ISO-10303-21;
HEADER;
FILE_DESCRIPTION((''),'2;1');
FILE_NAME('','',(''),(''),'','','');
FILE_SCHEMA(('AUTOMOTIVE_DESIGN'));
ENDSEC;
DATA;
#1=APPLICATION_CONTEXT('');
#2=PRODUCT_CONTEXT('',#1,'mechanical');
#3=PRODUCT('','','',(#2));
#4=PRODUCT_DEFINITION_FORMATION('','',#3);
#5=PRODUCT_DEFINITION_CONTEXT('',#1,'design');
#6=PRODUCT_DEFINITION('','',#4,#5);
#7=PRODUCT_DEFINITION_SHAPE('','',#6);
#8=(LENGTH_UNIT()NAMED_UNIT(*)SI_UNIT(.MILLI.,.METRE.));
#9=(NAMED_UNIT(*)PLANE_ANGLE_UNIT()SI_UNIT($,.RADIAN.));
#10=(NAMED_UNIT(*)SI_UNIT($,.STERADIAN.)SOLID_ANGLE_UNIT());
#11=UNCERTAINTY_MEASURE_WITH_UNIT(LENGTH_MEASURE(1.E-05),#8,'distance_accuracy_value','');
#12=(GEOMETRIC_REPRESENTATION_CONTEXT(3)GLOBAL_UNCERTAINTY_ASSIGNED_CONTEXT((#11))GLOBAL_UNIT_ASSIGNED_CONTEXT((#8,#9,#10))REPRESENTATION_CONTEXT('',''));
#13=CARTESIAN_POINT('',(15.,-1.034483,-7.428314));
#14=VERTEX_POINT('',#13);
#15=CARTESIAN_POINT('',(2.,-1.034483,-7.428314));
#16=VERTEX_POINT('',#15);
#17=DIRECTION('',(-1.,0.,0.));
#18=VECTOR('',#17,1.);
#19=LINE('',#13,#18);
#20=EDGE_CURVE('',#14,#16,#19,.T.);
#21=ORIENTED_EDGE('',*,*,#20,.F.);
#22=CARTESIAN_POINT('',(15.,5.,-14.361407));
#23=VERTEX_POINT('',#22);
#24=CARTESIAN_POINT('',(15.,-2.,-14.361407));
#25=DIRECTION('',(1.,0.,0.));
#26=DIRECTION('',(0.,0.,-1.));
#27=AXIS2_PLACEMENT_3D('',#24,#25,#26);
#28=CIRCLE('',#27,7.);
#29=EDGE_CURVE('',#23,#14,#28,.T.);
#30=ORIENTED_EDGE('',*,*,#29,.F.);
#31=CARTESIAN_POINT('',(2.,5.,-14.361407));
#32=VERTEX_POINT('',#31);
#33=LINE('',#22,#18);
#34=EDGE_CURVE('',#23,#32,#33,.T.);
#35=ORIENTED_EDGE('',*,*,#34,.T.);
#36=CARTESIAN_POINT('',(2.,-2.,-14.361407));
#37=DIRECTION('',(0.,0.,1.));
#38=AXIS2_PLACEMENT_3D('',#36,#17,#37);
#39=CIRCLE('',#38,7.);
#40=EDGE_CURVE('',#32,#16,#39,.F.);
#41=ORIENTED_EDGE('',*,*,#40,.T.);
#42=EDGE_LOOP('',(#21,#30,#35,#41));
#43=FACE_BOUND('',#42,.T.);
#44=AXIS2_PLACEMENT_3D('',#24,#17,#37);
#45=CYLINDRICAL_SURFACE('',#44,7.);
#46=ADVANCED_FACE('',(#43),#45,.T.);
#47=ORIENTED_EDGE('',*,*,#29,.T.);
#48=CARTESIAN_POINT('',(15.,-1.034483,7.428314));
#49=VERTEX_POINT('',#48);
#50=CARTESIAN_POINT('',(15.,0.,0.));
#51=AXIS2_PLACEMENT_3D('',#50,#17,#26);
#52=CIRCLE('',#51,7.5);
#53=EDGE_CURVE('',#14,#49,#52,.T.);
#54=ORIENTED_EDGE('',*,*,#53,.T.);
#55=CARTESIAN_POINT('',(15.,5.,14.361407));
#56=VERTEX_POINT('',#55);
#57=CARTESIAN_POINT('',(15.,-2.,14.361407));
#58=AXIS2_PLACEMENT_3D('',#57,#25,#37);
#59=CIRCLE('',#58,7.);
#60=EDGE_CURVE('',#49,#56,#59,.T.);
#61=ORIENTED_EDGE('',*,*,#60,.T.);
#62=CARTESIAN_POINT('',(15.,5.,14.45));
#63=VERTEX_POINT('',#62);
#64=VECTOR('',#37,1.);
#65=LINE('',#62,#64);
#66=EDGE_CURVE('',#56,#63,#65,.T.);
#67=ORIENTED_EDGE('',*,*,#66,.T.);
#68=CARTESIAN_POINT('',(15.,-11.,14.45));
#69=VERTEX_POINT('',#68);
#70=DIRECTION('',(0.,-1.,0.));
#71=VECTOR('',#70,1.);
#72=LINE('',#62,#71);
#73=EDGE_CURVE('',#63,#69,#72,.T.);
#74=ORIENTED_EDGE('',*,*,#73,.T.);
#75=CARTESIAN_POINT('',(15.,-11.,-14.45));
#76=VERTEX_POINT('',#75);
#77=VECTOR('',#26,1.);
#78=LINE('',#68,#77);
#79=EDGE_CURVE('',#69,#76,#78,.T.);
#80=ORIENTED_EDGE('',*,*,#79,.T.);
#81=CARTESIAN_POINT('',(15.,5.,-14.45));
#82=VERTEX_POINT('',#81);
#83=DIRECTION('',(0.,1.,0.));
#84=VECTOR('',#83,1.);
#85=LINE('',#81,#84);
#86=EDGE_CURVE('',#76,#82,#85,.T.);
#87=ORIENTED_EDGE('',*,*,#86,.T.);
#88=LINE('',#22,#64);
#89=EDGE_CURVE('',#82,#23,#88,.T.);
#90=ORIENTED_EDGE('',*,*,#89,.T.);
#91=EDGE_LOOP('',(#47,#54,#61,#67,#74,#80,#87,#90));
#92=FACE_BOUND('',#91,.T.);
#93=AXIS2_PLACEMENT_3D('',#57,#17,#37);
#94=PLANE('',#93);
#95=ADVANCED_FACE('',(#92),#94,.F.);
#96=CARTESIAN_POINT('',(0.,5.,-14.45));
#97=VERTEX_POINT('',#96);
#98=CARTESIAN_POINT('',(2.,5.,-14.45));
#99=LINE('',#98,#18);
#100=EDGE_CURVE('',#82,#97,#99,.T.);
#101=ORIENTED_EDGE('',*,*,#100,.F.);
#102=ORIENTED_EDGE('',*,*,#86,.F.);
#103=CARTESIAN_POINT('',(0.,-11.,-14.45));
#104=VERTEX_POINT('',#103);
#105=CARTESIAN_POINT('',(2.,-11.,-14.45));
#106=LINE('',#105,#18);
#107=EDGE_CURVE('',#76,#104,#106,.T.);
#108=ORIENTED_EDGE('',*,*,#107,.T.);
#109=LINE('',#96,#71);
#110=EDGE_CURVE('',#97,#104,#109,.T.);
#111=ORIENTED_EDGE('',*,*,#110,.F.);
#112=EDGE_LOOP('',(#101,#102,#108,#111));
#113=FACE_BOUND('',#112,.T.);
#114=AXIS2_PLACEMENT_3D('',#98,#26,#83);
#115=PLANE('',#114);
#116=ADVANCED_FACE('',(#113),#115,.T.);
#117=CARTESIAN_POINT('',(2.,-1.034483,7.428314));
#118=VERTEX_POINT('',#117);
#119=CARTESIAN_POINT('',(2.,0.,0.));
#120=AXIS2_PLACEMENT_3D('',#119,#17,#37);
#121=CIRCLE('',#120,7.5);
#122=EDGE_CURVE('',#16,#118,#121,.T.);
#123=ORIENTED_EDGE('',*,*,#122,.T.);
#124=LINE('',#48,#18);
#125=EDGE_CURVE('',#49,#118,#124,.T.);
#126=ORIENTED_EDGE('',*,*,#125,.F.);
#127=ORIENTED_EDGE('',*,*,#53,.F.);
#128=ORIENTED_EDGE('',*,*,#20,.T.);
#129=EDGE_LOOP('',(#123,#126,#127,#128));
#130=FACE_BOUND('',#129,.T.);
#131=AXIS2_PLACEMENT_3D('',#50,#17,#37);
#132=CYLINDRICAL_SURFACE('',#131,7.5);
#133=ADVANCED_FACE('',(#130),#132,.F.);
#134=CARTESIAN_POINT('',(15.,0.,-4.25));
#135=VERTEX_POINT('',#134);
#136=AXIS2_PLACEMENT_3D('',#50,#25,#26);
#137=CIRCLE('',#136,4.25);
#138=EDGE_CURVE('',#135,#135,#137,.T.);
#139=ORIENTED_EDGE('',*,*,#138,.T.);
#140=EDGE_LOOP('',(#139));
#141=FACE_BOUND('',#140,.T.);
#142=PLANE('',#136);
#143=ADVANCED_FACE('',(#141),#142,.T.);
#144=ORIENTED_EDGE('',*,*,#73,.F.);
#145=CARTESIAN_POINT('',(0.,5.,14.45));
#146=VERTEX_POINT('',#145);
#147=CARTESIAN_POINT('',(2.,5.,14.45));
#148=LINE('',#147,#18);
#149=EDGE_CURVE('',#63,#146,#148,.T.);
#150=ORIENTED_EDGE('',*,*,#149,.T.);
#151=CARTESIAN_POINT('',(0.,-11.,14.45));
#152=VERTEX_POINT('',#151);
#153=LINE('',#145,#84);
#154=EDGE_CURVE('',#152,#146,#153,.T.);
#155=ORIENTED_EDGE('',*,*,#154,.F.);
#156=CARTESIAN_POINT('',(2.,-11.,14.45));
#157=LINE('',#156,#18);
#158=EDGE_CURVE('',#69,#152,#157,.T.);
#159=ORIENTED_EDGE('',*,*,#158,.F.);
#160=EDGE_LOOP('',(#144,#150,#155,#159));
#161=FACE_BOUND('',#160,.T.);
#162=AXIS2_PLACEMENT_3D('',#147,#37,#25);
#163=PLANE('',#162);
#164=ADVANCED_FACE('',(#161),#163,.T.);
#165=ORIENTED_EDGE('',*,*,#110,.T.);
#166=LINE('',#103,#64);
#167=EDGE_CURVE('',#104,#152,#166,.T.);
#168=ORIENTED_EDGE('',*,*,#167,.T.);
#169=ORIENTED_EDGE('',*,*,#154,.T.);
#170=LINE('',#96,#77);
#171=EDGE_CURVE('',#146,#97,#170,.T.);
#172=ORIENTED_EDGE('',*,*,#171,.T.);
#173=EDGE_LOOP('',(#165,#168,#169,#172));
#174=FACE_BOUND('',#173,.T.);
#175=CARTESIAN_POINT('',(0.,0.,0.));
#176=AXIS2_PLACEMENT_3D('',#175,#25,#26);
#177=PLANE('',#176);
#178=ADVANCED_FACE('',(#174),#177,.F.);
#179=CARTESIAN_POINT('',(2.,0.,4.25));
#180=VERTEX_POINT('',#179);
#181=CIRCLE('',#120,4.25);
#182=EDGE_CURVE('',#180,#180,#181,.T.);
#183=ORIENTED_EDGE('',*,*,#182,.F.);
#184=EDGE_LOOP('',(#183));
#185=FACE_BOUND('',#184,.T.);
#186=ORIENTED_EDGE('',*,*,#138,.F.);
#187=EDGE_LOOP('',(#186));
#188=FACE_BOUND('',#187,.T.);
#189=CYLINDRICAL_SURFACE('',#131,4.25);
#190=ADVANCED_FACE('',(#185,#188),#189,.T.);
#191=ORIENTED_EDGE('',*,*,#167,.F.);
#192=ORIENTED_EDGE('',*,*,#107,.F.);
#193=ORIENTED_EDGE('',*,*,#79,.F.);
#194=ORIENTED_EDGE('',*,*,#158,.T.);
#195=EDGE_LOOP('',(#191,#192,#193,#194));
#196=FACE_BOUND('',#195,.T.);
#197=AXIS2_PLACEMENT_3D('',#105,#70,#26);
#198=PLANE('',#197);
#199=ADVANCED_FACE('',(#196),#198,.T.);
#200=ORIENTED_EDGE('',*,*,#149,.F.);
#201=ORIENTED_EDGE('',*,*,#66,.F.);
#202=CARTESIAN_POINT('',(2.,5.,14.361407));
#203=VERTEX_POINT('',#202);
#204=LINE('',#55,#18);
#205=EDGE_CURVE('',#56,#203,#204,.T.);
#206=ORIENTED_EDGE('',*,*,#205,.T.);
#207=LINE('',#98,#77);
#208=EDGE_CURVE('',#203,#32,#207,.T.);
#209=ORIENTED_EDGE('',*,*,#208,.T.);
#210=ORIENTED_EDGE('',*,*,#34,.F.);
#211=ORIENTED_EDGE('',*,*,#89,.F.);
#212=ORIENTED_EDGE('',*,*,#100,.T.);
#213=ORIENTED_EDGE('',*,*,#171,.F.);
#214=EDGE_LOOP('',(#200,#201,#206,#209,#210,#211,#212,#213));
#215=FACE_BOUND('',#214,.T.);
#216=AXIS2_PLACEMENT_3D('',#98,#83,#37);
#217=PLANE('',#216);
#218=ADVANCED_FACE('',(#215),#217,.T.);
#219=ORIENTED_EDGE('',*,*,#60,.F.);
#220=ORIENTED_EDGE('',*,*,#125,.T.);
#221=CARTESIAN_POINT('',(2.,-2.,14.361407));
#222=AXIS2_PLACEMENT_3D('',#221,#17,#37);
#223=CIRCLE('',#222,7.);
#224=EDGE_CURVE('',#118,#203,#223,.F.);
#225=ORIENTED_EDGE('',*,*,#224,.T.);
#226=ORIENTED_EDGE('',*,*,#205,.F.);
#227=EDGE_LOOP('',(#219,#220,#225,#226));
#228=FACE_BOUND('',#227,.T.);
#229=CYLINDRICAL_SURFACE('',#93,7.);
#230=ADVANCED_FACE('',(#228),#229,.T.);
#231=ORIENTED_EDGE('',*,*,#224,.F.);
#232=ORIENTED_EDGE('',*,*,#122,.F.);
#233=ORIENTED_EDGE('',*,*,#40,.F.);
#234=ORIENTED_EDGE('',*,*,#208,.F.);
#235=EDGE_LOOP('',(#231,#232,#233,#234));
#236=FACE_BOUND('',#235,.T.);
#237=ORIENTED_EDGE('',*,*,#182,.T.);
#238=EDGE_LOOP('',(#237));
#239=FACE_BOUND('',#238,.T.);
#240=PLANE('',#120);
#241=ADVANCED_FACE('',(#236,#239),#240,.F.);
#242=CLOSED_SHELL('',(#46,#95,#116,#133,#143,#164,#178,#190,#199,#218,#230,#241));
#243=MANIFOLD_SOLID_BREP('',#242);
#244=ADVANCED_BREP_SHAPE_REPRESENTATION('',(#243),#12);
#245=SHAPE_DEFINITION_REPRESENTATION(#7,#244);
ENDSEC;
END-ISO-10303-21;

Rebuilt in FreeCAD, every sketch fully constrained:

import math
import FreeCAD as App
import Part
import Sketcher

doc = App.newDocument("Part")
body = doc.addObject("PartDesign::Body", "Body")

sketch1 = body.newObject("Sketcher::SketchObject", "Sketch")
sketch1.AttachmentSupport = (doc.getObject("YZ_Plane"), [""])
sketch1.MapMode = "FlatFace"
sketch1.addGeometry(Part.Circle(App.Vector(0, 0, 0), App.Vector(0, 0, 1), 4.25), False)
sketch1.addConstraint([
    Sketcher.Constraint("Coincident", 0, 3, -1, 1),
    Sketcher.Constraint("Diameter", 0, 8.5),
])
pad1 = body.newObject("PartDesign::Pad", "Pad")
pad1.Profile = sketch1
pad1.Length = 15
body2 = doc.addObject("PartDesign::Body", "Body001")

sketch2 = body2.newObject("Sketcher::SketchObject", "Sketch001")
sketch2.AttachmentSupport = (doc.getObject("YZ_Plane001"), [""])
sketch2.MapMode = "FlatFace"
sketch2.addGeometry([
    Part.LineSegment(App.Vector(5, 14.361407, 0), App.Vector(5, 14.45, 0)),
    Part.LineSegment(App.Vector(5, 14.45, 0), App.Vector(-11, 14.45, 0)),
    Part.LineSegment(App.Vector(-11, 14.45, 0), App.Vector(-11, -14.45, 0)),
    Part.LineSegment(App.Vector(-11, -14.45, 0), App.Vector(5, -14.45, 0)),
    Part.LineSegment(App.Vector(5, -14.45, 0), App.Vector(5, -14.361407, 0)),
    Part.ArcOfCircle(Part.Circle(App.Vector(-2, -14.361407, 0), App.Vector(0, 0, 1), 7), math.radians(0), math.radians(82.071858)),
    Part.ArcOfCircle(Part.Circle(App.Vector(0, 0, 0), App.Vector(0, 0, 1), 7.5), math.radians(97.928142), math.radians(262.071858)),
    Part.ArcOfCircle(Part.Circle(App.Vector(-2, 14.361407, 0), App.Vector(0, 0, 1), 7), math.radians(-82.071858), math.radians(0)),
], False)
sketch2.addConstraint([
    Sketcher.Constraint("Coincident", 0, 2, 1, 1),
    Sketcher.Constraint("Coincident", 1, 2, 2, 1),
    Sketcher.Constraint("Coincident", 2, 2, 3, 1),
    Sketcher.Constraint("Coincident", 3, 2, 4, 1),
    Sketcher.Constraint("Tangent", 4, 2, 5, 1),
    Sketcher.Constraint("Tangent", 5, 2, 6, 2),
    Sketcher.Constraint("Tangent", 6, 1, 7, 1),
    Sketcher.Constraint("Tangent", 7, 2, 0, 1),
    Sketcher.Constraint("Vertical", 0),
    Sketcher.Constraint("Horizontal", 1),
    Sketcher.Constraint("Vertical", 2),
    Sketcher.Constraint("Horizontal", 3),
    Sketcher.Constraint("Vertical", 4),
    Sketcher.Constraint("Coincident", 6, 3, -1, 1),
    Sketcher.Constraint("Equal", 5, 7),
    Sketcher.Constraint("Symmetric", 0, 2, 3, 2, -1),
    Sketcher.Constraint("Radius", 5, 7.0),
    Sketcher.Constraint("Radius", 6, 7.5),
    Sketcher.Constraint("DistanceX", 1, 2, 1, 1, 16.0),
    Sketcher.Constraint("DistanceY", 2, 2, 2, 1, 28.9),
    Sketcher.Constraint("DistanceX", 5, 3, -1, 1, 2.0),
])
pad2 = body2.newObject("PartDesign::Pad", "Pad001")
pad2.Profile = sketch2
pad2.Length = 15
body.AllowCompound = True
doc.recompute()

boolean = body.newObject("PartDesign::Boolean", "Boolean")
boolean.Type = "Fuse"
boolean.addObjects([body2])

sketch3 = body.newObject("Sketcher::SketchObject", "Sketch002")
sketch3.AttachmentSupport = (doc.getObject("YZ_Plane"), [""])
sketch3.MapMode = "FlatFace"
sketch3.addGeometry([
    Part.LineSegment(App.Vector(5, -14.45, 0), App.Vector(-11, -14.45, 0)),
    Part.LineSegment(App.Vector(-11, -14.45, 0), App.Vector(-11, 14.45, 0)),
    Part.LineSegment(App.Vector(-11, 14.45, 0), App.Vector(5, 14.45, 0)),
    Part.LineSegment(App.Vector(5, 14.45, 0), App.Vector(5, -14.45, 0)),
], False)
sketch3.addConstraint([
    Sketcher.Constraint("Coincident", 0, 2, 1, 1),
    Sketcher.Constraint("Coincident", 1, 2, 2, 1),
    Sketcher.Constraint("Coincident", 2, 2, 3, 1),
    Sketcher.Constraint("Coincident", 3, 2, 0, 1),
    Sketcher.Constraint("Horizontal", 0),
    Sketcher.Constraint("Vertical", 1),
    Sketcher.Constraint("Horizontal", 2),
    Sketcher.Constraint("Vertical", 3),
    Sketcher.Constraint("DistanceX", 0, 2, 0, 1, 16.0),
    Sketcher.Constraint("DistanceY", 1, 1, 1, 2, 28.9),
    Sketcher.Constraint("DistanceX", 0, 2, -1, 1, 11.0),
    Sketcher.Constraint("DistanceY", 0, 2, -1, 1, 14.45),
])
pad3 = body.newObject("PartDesign::Pad", "Pad002")
pad3.Profile = sketch3
pad3.Length = 2

doc.recompute()
